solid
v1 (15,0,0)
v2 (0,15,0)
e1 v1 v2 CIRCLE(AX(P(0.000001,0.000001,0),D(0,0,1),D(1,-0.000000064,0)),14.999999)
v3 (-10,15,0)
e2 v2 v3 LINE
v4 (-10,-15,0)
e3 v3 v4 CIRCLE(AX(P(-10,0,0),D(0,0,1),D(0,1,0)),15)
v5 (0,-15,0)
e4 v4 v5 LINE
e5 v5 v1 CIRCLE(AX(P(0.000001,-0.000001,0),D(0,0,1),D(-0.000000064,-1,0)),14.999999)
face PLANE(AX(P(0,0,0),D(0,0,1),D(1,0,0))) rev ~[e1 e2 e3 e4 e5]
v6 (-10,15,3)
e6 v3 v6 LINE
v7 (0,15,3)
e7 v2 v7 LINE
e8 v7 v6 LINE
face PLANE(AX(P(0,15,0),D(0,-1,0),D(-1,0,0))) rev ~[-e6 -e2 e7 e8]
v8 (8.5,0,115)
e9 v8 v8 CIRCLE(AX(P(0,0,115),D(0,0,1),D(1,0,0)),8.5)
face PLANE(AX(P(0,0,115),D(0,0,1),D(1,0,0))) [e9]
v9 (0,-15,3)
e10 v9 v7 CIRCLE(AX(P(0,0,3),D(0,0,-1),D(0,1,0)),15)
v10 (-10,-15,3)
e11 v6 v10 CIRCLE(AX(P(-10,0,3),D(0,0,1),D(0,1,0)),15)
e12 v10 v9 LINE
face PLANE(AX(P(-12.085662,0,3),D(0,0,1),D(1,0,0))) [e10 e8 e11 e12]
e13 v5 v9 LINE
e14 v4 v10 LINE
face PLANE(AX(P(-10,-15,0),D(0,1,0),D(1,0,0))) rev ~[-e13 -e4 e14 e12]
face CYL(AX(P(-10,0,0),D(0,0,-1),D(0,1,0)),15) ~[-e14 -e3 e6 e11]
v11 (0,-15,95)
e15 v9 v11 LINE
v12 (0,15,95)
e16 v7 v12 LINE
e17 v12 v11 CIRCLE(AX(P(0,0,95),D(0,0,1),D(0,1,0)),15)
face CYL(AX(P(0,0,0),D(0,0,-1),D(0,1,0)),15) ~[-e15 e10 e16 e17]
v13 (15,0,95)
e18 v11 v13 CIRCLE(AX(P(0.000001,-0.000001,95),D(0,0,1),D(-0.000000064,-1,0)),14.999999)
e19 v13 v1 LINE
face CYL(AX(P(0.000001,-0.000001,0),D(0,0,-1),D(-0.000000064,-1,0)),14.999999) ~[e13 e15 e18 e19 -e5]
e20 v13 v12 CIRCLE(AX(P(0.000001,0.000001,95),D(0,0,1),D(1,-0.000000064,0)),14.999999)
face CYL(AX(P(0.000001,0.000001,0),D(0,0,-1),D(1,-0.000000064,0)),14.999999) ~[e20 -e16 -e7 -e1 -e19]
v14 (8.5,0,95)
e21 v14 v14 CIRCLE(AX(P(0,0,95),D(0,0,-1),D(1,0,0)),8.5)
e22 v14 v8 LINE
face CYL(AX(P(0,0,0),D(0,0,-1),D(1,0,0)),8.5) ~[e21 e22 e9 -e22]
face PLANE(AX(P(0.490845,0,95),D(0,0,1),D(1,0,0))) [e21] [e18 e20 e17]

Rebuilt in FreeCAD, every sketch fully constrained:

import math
import FreeCAD as App
import Part
import Sketcher

doc = App.newDocument("Part")
params = doc.addObject("Spreadsheet::Sheet", "Params")
for row, (alias, value) in enumerate([
    ("sketch1_radius", "15 mm"),
    ("sketch1_width", "10 mm"),
    ("pad1_length", "3 mm"),
    ("sketch2_radius", "14.999999 mm"),
    ("pad2_length", "95 mm"),
    ("sketch3_diameter", "17 mm"),
    ("pad3_length", "115 mm"),
], start=1):
    params.set(f"A{row}", alias)
    params.set(f"B{row}", "=" + value)
    params.setAlias(f"B{row}", alias)

body = doc.addObject("PartDesign::Body", "Body")

sketch1 = body.newObject("Sketcher::SketchObject", "Sketch")
sketch1.AttachmentSupport = (doc.getObject("XY_Plane"), [""])
sketch1.MapMode = "FlatFace"
sketch1.addGeometry(Part.LineSegment(App.Vector(0, 15, 0), App.Vector(-10, 15, 0)), False)
sketch1.addGeometry(Part.ArcOfCircle(Part.Circle(App.Vector(-10, 0, 0), App.Vector(0, 0, 1), 15), math.radians(90), math.radians(270)), False)
sketch1.addGeometry(Part.LineSegment(App.Vector(-10, -15, 0), App.Vector(0, -15, 0)), False)
sketch1.addGeometry(Part.ArcOfCircle(Part.Circle(App.Vector(0, 0, 0), App.Vector(0, 0, 1), 15), math.radians(-90), math.radians(0)), False)
sketch1.addGeometry(Part.ArcOfCircle(Part.Circle(App.Vector(0, 0, 0), App.Vector(0, 0, 1), 15), math.radians(0), math.radians(90)), False)
sketch1.addConstraint(Sketcher.Constraint("Tangent", 0, 2, 1, 1))
sketch1.addConstraint(Sketcher.Constraint("Tangent", 1, 2, 2, 1))
sketch1.addConstraint(Sketcher.Constraint("Tangent", 2, 2, 3, 1))
sketch1.addConstraint(Sketcher.Constraint("Tangent", 3, 2, 4, 1))
sketch1.addConstraint(Sketcher.Constraint("Tangent", 4, 2, 0, 1))
sketch1.addConstraint(Sketcher.Constraint("Horizontal", 0))
sketch1.addConstraint(Sketcher.Constraint("Horizontal", 2))
sketch1.addConstraint(Sketcher.Constraint("Coincident", 3, 3, -1, 1))
sketch1.addConstraint(Sketcher.Constraint("Equal", 1, 3))
sketch1.addConstraint(Sketcher.Constraint("PointOnObject", 3, 2, -1))
sketch1.addConstraint(Sketcher.Constraint("Radius", 1, 15.0))
sketch1.addConstraint(Sketcher.Constraint("DistanceX", 0, 2, 0, 1, 10.0))
sketch1.setExpression("Constraints[10]", "Params.sketch1_radius")
sketch1.setExpression("Constraints[11]", "Params.sketch1_width")
pad1 = body.newObject("PartDesign::Pad", "Pad")
pad1.Profile = sketch1
pad1.setExpression("Length", "Params.pad1_length")

sketch2 = body.newObject("Sketcher::SketchObject", "Sketch001")
sketch2.AttachmentSupport = (doc.getObject("XY_Plane"), [""])
sketch2.MapMode = "FlatFace"
sketch2.addGeometry(Part.ArcOfCircle(Part.Circle(App.Vector(0, 0, 0), App.Vector(0, 0, 1), 15), math.radians(-90), math.radians(0)), False)
sketch2.addGeometry(Part.ArcOfCircle(Part.Circle(App.Vector(0, 0, 0), App.Vector(0, 0, 1), 15), math.radians(0), math.radians(90)), False)
sketch2.addGeometry(Part.ArcOfCircle(Part.Circle(App.Vector(0, 0, 0), App.Vector(0, 0, 1), 15), math.radians(90), math.radians(270)), False)
sketch2.addConstraint(Sketcher.Constraint("Tangent", 0, 2, 1, 1))
sketch2.addConstraint(Sketcher.Constraint("Tangent", 1, 2, 2, 1))
sketch2.addConstraint(Sketcher.Constraint("Tangent", 2, 2, 0, 1))
sketch2.addConstraint(Sketcher.Constraint("Coincident", 0, 3, -1, 1))
sketch2.addConstraint(Sketcher.Constraint("PointOnObject", 0, 2, -1))
sketch2.addConstraint(Sketcher.Constraint("PointOnObject", 1, 2, -2))
sketch2.addConstraint(Sketcher.Constraint("PointOnObject", 2, 2, -2))
sketch2.addConstraint(Sketcher.Constraint("Radius", 0, 14.999999))
sketch2.setExpression("Constraints[7]", "Params.sketch2_radius")
pad2 = body.newObject("PartDesign::Pad", "Pad001")
pad2.Profile = sketch2
pad2.setExpression("Length", "Params.pad2_length")

sketch3 = body.newObject("Sketcher::SketchObject", "Sketch002")
sketch3.AttachmentSupport = (doc.getObject("XY_Plane"), [""])
sketch3.MapMode = "FlatFace"
sketch3.addGeometry(Part.Circle(App.Vector(0, 0, 0), App.Vector(0, 0, 1), 8), False)
sketch3.addConstraint(Sketcher.Constraint("Coincident", 0, 3, -1, 1))
sketch3.addConstraint(Sketcher.Constraint("Diameter", 0, 17.0))
sketch3.setExpression("Constraints[1]", "Params.sketch3_diameter")
pad3 = body.newObject("PartDesign::Pad", "Pad002")
pad3.Profile = sketch3
pad3.setExpression("Length", "Params.pad3_length")

doc.recompute()
